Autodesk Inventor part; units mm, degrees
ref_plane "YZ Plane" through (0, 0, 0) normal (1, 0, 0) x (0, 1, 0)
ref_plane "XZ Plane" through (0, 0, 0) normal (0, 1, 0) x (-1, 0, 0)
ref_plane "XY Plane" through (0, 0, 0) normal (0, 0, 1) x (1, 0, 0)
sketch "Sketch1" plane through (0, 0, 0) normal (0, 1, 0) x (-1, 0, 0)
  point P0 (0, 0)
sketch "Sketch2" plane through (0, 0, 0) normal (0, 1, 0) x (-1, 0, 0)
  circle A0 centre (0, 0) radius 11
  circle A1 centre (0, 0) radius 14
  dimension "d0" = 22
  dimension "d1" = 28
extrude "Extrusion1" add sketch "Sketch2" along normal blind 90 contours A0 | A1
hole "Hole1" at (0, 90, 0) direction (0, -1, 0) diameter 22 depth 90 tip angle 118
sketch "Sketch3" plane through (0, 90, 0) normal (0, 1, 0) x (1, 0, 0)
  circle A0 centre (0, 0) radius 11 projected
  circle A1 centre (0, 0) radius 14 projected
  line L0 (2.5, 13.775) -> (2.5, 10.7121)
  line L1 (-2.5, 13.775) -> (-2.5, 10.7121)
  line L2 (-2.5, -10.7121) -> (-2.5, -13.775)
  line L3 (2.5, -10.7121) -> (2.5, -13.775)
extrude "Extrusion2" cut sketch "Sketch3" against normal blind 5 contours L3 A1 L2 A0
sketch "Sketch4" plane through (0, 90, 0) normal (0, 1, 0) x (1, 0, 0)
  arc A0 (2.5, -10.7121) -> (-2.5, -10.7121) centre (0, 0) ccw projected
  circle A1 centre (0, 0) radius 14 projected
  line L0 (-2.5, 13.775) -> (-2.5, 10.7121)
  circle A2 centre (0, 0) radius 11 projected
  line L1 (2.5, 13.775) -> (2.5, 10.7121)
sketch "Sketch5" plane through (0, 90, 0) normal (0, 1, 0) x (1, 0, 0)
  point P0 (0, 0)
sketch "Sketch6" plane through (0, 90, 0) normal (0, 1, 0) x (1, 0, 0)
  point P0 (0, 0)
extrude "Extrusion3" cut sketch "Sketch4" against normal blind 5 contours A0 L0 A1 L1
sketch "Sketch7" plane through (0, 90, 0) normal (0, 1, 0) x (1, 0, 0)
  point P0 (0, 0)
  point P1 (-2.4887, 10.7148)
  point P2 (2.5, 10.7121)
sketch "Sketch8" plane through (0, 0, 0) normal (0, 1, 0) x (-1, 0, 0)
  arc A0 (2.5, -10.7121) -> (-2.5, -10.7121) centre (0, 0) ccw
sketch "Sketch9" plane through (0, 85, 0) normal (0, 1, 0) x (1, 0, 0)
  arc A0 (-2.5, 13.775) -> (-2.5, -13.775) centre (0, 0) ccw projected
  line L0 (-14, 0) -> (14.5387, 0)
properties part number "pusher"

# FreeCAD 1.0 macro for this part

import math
import FreeCAD as App
import Part
import Sketcher

V = App.Vector

doc = App.newDocument("Part")
body = doc.addObject("PartDesign::Body", "Body")

# Sketch on XZ plane
sketch1 = doc.addObject("Sketcher::SketchObject", "Sketch")
body.addObject(sketch1)
sketch1.AttachmentSupport = (doc.XZ_Plane, [""])
sketch1.MapMode = "FlatFace"
sketch1.addGeometry(Part.Circle(V(0, 0, 0), V(0, 0, 1), 14), False)
sketch1.addConstraint([
    Sketcher.Constraint("Coincident", 0, 3, -1, 1),
    Sketcher.Constraint("Diameter", 0, 28.0),
])
pad1 = doc.addObject("PartDesign::Pad", "Pad")
body.addObject(pad1)
pad1.Profile = sketch1
pad1.Length = 90
pad1.Reversed = True

# Sketch on XZ plane
sketch2 = doc.addObject("Sketcher::SketchObject", "Sketch001")
body.addObject(sketch2)
sketch2.AttachmentSupport = (doc.XZ_Plane, [""])
sketch2.MapMode = "FlatFace"
sketch2.AttachmentOffset = App.Placement(V(0, 0, -90), App.Rotation())
sketch2.addGeometry(Part.Circle(V(0, 0, 0), V(0, 0, 1), 11), False)
sketch2.addConstraint([
    Sketcher.Constraint("Coincident", 0, 3, -1, 1),
    Sketcher.Constraint("Diameter", 0, 22.0),
])
doc.recompute()
hole = doc.addObject("PartDesign::Hole", "Hole")
body.addObject(hole)
hole.Profile = sketch2
hole.ThreadType = "None"
hole.Diameter = 22
hole.DepthType = "Dimension"
hole.Depth = 90
hole.DrillPoint = "Angled"
hole.DrillPointAngle = 118
hole.Reversed = True

# Sketch on XZ plane
sketch3 = doc.addObject("Sketcher::SketchObject", "Sketch002")
body.addObject(sketch3)
sketch3.AttachmentSupport = (doc.XZ_Plane, [""])
sketch3.MapMode = "FlatFace"
sketch3.AttachmentOffset = App.Placement(V(0, 0, -90), App.Rotation())
sketch3.addGeometry([
    Part.LineSegment(V(2.5, 13.775, 0), V(2.5, 10.7121, 0)),
    Part.ArcOfCircle(Part.Circle(V(0, 0, 0), V(0, 0, 1), 11), math.radians(76.863391), math.radians(103.136609)),
    Part.LineSegment(V(-2.5, 10.7121, 0), V(-2.5, 13.775, 0)),
    Part.ArcOfCircle(Part.Circle(V(0, 0, 0), V(0, 0, 1), 14), math.radians(79.713456), math.radians(100.286544)),
], False)
sketch3.addConstraint([
    Sketcher.Constraint("Coincident", 0, 2, 1, 1),
    Sketcher.Constraint("Coincident", 1, 2, 2, 1),
    Sketcher.Constraint("Coincident", 2, 2, 3, 2),
    Sketcher.Constraint("Coincident", 3, 1, 0, 1),
    Sketcher.Constraint("Vertical", 0),
    Sketcher.Constraint("Vertical", 2),
    Sketcher.Constraint("Coincident", 1, 3, -1, 1),
    Sketcher.Constraint("Coincident", 3, 3, -1, 1),
    Sketcher.Constraint("Horizontal", 0, 2, 1, 2),
    Sketcher.Constraint("Radius", 1, 11.0),
    Sketcher.Constraint("Radius", 3, 14.0),
    Sketcher.Constraint("DistanceX", 1, 2, 0, 2, 5.0),
])
pocket1 = doc.addObject("PartDesign::Pocket", "Pocket")
body.addObject(pocket1)
pocket1.Profile = sketch3
pocket1.Length = 5
pocket1.Reversed = True

# Sketch on XZ plane
sketch4 = doc.addObject("Sketcher::SketchObject", "Sketch003")
body.addObject(sketch4)
sketch4.AttachmentSupport = (doc.XZ_Plane, [""])
sketch4.MapMode = "FlatFace"
sketch4.AttachmentOffset = App.Placement(V(0, 0, -90), App.Rotation())
sketch4.addGeometry([
    Part.ArcOfCircle(Part.Circle(V(0, 0, 0), V(0, 0, 1), 10.999958), math.radians(-103.136609), math.radians(-76.863391)),
    Part.LineSegment(V(2.5, -10.7121, 0), V(2.5, -13.775, 0)),
    Part.ArcOfCircle(Part.Circle(V(0, 0, 0), V(0, 0, 1), 14), math.radians(-100.286544), math.radians(-79.713456)),
    Part.LineSegment(V(-2.5, -13.775, 0), V(-2.5, -10.7121, 0)),
], False)
sketch4.addConstraint([
    Sketcher.Constraint("Coincident", 0, 2, 1, 1),
    Sketcher.Constraint("Coincident", 1, 2, 2, 2),
    Sketcher.Constraint("Coincident", 2, 1, 3, 1),
    Sketcher.Constraint("Coincident", 3, 2, 0, 1),
    Sketcher.Constraint("Vertical", 1),
    Sketcher.Constraint("Vertical", 3),
    Sketcher.Constraint("Coincident", 0, 3, -1, 1),
    Sketcher.Constraint("Coincident", 2, 3, -1, 1),
    Sketcher.Constraint("Horizontal", 1, 2, 2, 1),
    Sketcher.Constraint("Radius", 0, 11.0),
    Sketcher.Constraint("Radius", 2, 14.0),
    Sketcher.Constraint("DistanceX", 2, 1, 1, 2, 5.0),
])
pocket2 = doc.addObject("PartDesign::Pocket", "Pocket001")
body.addObject(pocket2)
pocket2.Profile = sketch4
pocket2.Length = 5
pocket2.Reversed = True

doc.recompute()
